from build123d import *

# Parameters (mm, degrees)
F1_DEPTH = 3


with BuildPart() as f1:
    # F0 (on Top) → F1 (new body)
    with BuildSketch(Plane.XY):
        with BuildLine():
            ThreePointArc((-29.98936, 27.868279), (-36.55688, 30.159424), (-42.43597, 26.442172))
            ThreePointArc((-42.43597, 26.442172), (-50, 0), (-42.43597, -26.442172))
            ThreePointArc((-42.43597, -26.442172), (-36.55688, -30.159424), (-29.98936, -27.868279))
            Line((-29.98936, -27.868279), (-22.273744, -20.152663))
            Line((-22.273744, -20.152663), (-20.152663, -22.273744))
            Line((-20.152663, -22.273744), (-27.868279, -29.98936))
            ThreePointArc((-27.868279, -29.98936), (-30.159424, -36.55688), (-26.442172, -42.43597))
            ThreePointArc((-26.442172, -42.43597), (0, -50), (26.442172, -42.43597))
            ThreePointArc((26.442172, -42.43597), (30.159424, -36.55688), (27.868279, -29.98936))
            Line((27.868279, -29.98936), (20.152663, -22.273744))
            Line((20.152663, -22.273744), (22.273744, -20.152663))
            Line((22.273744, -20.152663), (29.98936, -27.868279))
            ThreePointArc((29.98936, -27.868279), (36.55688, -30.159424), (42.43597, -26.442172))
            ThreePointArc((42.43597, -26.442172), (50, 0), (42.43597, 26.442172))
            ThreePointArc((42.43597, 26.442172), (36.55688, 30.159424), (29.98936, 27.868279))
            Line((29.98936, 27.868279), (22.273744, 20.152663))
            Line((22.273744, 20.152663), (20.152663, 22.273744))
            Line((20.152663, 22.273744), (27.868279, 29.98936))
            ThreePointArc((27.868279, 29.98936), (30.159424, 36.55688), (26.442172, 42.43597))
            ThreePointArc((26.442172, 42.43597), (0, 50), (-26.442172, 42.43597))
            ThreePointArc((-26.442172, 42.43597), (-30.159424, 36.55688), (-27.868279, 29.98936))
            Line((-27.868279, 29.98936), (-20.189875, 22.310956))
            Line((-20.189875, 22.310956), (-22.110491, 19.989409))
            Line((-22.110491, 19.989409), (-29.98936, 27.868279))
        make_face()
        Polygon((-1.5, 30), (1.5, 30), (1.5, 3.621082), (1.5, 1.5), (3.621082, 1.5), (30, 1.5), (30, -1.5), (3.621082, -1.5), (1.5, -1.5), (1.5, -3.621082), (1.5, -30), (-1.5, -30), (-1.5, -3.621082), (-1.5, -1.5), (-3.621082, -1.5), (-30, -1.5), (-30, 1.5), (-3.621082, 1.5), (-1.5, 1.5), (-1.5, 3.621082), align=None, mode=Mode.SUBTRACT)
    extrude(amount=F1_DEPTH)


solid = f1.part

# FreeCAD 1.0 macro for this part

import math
import FreeCAD as App
import Part
import Sketcher
from FreeCAD import Vector


def add_polygon(sketch, points):
    """Adds a closed chain of lines whose ends are joined by coincident constraints."""
    first, n = sketch.GeometryCount, len(points)
    for a, b in zip(points, points[1:] + points[:1]):
        sketch.addGeometry(Part.LineSegment(App.Vector(*a, 0), App.Vector(*b, 0)), False)
    for i in range(n):
        sketch.addConstraint(Sketcher.Constraint("Coincident", first + i, 2, first + (i + 1) % n, 1))

doc = App.newDocument("Part")
body = doc.addObject("PartDesign::Body", "Body")

# Sketch on XY plane
sketch1 = body.newObject("Sketcher::SketchObject", "Sketch")
sketch1.AttachmentSupport = (doc.getObject("XY_Plane"), [""])
sketch1.MapMode = "FlatFace"
sketch1.addGeometry(Part.ArcOfCircle(Part.Circle(Vector(-35.6, 22.2, 0), Vector(0, 0, 1), 8), math.radians(45), math.radians(148)), False)  # 0
sketch1.addGeometry(Part.ArcOfCircle(Part.Circle(Vector(0, 0, 0), Vector(0, 0, 1), 50), math.radians(148), math.radians(212)), False)  # 1
sketch1.addGeometry(Part.ArcOfCircle(Part.Circle(Vector(-35.6, -22.2, 0), Vector(0, 0, 1), 8), math.radians(-148), math.radians(-45)), False)  # 2
sketch1.addGeometry(Part.LineSegment(Vector(-30, -27.9, 0), Vector(-22.3, -20.2, 0)), False)  # 3
sketch1.addGeometry(Part.LineSegment(Vector(-22.3, -20.2, 0), Vector(-20.2, -22.3, 0)), False)  # 4
sketch1.addGeometry(Part.LineSegment(Vector(-20.2, -22.3, 0), Vector(-27.9, -30, 0)), False)  # 5
sketch1.addGeometry(Part.ArcOfCircle(Part.Circle(Vector(-22.2, -35.6, 0), Vector(0, 0, 1), 8), math.radians(135), math.radians(238)), False)  # 6
sketch1.addGeometry(Part.ArcOfCircle(Part.Circle(Vector(0, 0, 0), Vector(0, 0, 1), 50), math.radians(-122), math.radians(-58)), False)  # 7
sketch1.addGeometry(Part.ArcOfCircle(Part.Circle(Vector(22.2, -35.6, 0), Vector(0, 0, 1), 8), math.radians(-58), math.radians(45)), False)  # 8
sketch1.addGeometry(Part.LineSegment(Vector(27.9, -30, 0), Vector(20.2, -22.3, 0)), False)  # 9
sketch1.addGeometry(Part.LineSegment(Vector(20.2, -22.3, 0), Vector(22.3, -20.2, 0)), False)  # 10
sketch1.addGeometry(Part.LineSegment(Vector(22.3, -20.2, 0), Vector(30, -27.9, 0)), False)  # 11
sketch1.addGeometry(Part.ArcOfCircle(Part.Circle(Vector(35.6, -22.2, 0), Vector(0, 0, 1), 8), math.radians(-135), math.radians(-32)), False)  # 12
sketch1.addGeometry(Part.ArcOfCircle(Part.Circle(Vector(0, 0, 0), Vector(0, 0, 1), 50), math.radians(-32), math.radians(32)), False)  # 13
sketch1.addGeometry(Part.ArcOfCircle(Part.Circle(Vector(35.6, 22.2, 0), Vector(0, 0, 1), 8), math.radians(32), math.radians(135)), False)  # 14
sketch1.addGeometry(Part.LineSegment(Vector(30, 27.9, 0), Vector(22.3, 20.2, 0)), False)  # 15
sketch1.addGeometry(Part.LineSegment(Vector(22.3, 20.2, 0), Vector(20.2, 22.3, 0)), False)  # 16
sketch1.addGeometry(Part.LineSegment(Vector(20.2, 22.3, 0), Vector(27.9, 30, 0)), False)  # 17
sketch1.addGeometry(Part.ArcOfCircle(Part.Circle(Vector(22.2, 35.6, 0), Vector(0, 0, 1), 8), math.radians(-45), math.radians(58)), False)  # 18
sketch1.addGeometry(Part.ArcOfCircle(Part.Circle(Vector(0, 0, 0), Vector(0, 0, 1), 50), math.radians(58), math.radians(122)), False)  # 19
sketch1.addGeometry(Part.ArcOfCircle(Part.Circle(Vector(-22.2, 35.6, 0), Vector(0, 0, 1), 8), math.radians(122), math.radians(225)), False)  # 20
sketch1.addGeometry(Part.LineSegment(Vector(-27.9, 30, 0), Vector(-20.2, 22.3, 0)), False)  # 21
sketch1.addGeometry(Part.LineSegment(Vector(-20.2, 22.3, 0), Vector(-22.1, 20, 0)), False)  # 22
sketch1.addGeometry(Part.LineSegment(Vector(-22.1, 20, 0), Vector(-30, 27.9, 0)), False)  # 23
add_polygon(sketch1, [(-1.5, 1.5), (-1.5, 30), (1.5, 30), (1.5, 1.5), (30, 1.5), (30, -1.5), (1.5, -1.5), (1.5, -30), (-1.5, -30), (-1.5, -1.5), (-30, -1.5), (-30, 1.5)])  # lines 24-35
sketch1.addConstraint([
    Sketcher.Constraint("Tangent", 0, 2, 1, 1),
    Sketcher.Constraint("Tangent", 1, 2, 2, 1),
    Sketcher.Constraint("Tangent", 2, 2, 3, 1),
    Sketcher.Constraint("Coincident", 3, 2, 4, 1),
    Sketcher.Constraint("Coincident", 4, 2, 5, 1),
    Sketcher.Constraint("Tangent", 5, 2, 6, 1),
    Sketcher.Constraint("Tangent", 6, 2, 7, 1),
    Sketcher.Constraint("Tangent", 7, 2, 8, 1),
    Sketcher.Constraint("Tangent", 8, 2, 9, 1),
    Sketcher.Constraint("Coincident", 9, 2, 10, 1),
    Sketcher.Constraint("Coincident", 10, 2, 11, 1),
    Sketcher.Constraint("Tangent", 11, 2, 12, 1),
    Sketcher.Constraint("Tangent", 12, 2, 13, 1),
    Sketcher.Constraint("Tangent", 13, 2, 14, 1),
    Sketcher.Constraint("Tangent", 14, 2, 15, 1),
    Sketcher.Constraint("Coincident", 15, 2, 16, 1),
    Sketcher.Constraint("Coincident", 16, 2, 17, 1),
    Sketcher.Constraint("Tangent", 17, 2, 18, 1),
    Sketcher.Constraint("Tangent", 18, 2, 19, 1),
    Sketcher.Constraint("Tangent", 19, 2, 20, 1),
    Sketcher.Constraint("Tangent", 20, 2, 21, 1),
    Sketcher.Constraint("Coincident", 21, 2, 22, 1),
    Sketcher.Constraint("Coincident", 22, 2, 23, 1),
    Sketcher.Constraint("Tangent", 23, 2, 0, 1),
    Sketcher.Constraint("Vertical", 24),
    Sketcher.Constraint("Horizontal", 25),
    Sketcher.Constraint("Vertical", 26),
    Sketcher.Constraint("Horizontal", 27),
    Sketcher.Constraint("Vertical", 28),
    Sketcher.Constraint("Horizontal", 29),
    Sketcher.Constraint("Vertical", 30),
    Sketcher.Constraint("Horizontal", 31),
    Sketcher.Constraint("Vertical", 32),
    Sketcher.Constraint("Horizontal", 33),
    Sketcher.Constraint("Vertical", 34),
    Sketcher.Constraint("Horizontal", 35),
    Sketcher.Constraint("Coincident", 1, 3, -1, 1),
    Sketcher.Constraint("Coincident", 7, 3, -1, 1),
    Sketcher.Constraint("Coincident", 13, 3, -1, 1),
    Sketcher.Constraint("Coincident", 19, 3, -1, 1),
    Sketcher.Constraint("Equal", 0, 2),
    Sketcher.Constraint("Equal", 2, 6),
    Sketcher.Constraint("Equal", 1, 7),
    Sketcher.Constraint("Equal", 6, 8),
    Sketcher.Constraint("Equal", 8, 12),
    Sketcher.Constraint("Equal", 7, 13),
    Sketcher.Constraint("Equal", 12, 14),
    Sketcher.Constraint("Equal", 14, 18),
    Sketcher.Constraint("Equal", 13, 19),
    Sketcher.Constraint("Equal", 18, 20),
    Sketcher.Constraint("Symmetric", 2, 2, 14, 2, -1, 1),
    Sketcher.Constraint("Symmetric", 4, 2, 16, 2, -1, 1),
    Sketcher.Constraint("Symmetric", 8, 2, 20, 2, -1, 1),
    Sketcher.Constraint("Symmetric", 11, 2, 23, 2, -1, 1),
    Sketcher.Constraint("Symmetric", 24, 2, 30, 2, -1, 1),
    Sketcher.Constraint("Symmetric", 26, 2, 32, 2, -1, 1),
    Sketcher.Constraint("Symmetric", 28, 2, 34, 2, -1, 1),
    Sketcher.Constraint("Symmetric", 5, 2, 8, 2, -2),
    Sketcher.Constraint("Symmetric", 3, 2, 10, 2, -2),
    Sketcher.Constraint("Symmetric", 29, 2, 32, 2, -2),
    Sketcher.Constraint("Perpendicular", 3, 4),
    Sketcher.Constraint("Perpendicular", 4, 5),
    Sketcher.Constraint("Perpendicular", 5, 9),
    Sketcher.Constraint("Perpendicular", 9, 10),
    Sketcher.Constraint("Perpendicular", 10, 11),
    Sketcher.Constraint("Perpendicular", 15, 16),
    Sketcher.Constraint("Perpendicular", 16, 17),
    Sketcher.Constraint("Equal", 35, 24),
    Sketcher.Constraint("Equal", 31, 28),
    Sketcher.Constraint("Equal", 3, 5),
    Sketcher.Constraint("Radius", 0, 8.0),
    Sketcher.Constraint("Radius", 1, 50.000001),
    Sketcher.Constraint("DistanceX", 25, 1, 25, 2, 3.0),
    Sketcher.Constraint("DistanceX", 27, 1, 27, 2, 28.5),
    Sketcher.Constraint("DistanceX", 0, 2, 19, 2, 15.993798),
    Sketcher.Constraint("Distance", 3, 10.911529),
    Sketcher.Constraint("Distance", 22, 3.013029),
    Sketcher.Constraint("DistanceX", 22, 2, -1, 1, 22.110491),
])
pad1 = body.newObject("PartDesign::Pad", "Pad")
pad1.Profile = sketch1
pad1.Length = 3

doc.recompute()
